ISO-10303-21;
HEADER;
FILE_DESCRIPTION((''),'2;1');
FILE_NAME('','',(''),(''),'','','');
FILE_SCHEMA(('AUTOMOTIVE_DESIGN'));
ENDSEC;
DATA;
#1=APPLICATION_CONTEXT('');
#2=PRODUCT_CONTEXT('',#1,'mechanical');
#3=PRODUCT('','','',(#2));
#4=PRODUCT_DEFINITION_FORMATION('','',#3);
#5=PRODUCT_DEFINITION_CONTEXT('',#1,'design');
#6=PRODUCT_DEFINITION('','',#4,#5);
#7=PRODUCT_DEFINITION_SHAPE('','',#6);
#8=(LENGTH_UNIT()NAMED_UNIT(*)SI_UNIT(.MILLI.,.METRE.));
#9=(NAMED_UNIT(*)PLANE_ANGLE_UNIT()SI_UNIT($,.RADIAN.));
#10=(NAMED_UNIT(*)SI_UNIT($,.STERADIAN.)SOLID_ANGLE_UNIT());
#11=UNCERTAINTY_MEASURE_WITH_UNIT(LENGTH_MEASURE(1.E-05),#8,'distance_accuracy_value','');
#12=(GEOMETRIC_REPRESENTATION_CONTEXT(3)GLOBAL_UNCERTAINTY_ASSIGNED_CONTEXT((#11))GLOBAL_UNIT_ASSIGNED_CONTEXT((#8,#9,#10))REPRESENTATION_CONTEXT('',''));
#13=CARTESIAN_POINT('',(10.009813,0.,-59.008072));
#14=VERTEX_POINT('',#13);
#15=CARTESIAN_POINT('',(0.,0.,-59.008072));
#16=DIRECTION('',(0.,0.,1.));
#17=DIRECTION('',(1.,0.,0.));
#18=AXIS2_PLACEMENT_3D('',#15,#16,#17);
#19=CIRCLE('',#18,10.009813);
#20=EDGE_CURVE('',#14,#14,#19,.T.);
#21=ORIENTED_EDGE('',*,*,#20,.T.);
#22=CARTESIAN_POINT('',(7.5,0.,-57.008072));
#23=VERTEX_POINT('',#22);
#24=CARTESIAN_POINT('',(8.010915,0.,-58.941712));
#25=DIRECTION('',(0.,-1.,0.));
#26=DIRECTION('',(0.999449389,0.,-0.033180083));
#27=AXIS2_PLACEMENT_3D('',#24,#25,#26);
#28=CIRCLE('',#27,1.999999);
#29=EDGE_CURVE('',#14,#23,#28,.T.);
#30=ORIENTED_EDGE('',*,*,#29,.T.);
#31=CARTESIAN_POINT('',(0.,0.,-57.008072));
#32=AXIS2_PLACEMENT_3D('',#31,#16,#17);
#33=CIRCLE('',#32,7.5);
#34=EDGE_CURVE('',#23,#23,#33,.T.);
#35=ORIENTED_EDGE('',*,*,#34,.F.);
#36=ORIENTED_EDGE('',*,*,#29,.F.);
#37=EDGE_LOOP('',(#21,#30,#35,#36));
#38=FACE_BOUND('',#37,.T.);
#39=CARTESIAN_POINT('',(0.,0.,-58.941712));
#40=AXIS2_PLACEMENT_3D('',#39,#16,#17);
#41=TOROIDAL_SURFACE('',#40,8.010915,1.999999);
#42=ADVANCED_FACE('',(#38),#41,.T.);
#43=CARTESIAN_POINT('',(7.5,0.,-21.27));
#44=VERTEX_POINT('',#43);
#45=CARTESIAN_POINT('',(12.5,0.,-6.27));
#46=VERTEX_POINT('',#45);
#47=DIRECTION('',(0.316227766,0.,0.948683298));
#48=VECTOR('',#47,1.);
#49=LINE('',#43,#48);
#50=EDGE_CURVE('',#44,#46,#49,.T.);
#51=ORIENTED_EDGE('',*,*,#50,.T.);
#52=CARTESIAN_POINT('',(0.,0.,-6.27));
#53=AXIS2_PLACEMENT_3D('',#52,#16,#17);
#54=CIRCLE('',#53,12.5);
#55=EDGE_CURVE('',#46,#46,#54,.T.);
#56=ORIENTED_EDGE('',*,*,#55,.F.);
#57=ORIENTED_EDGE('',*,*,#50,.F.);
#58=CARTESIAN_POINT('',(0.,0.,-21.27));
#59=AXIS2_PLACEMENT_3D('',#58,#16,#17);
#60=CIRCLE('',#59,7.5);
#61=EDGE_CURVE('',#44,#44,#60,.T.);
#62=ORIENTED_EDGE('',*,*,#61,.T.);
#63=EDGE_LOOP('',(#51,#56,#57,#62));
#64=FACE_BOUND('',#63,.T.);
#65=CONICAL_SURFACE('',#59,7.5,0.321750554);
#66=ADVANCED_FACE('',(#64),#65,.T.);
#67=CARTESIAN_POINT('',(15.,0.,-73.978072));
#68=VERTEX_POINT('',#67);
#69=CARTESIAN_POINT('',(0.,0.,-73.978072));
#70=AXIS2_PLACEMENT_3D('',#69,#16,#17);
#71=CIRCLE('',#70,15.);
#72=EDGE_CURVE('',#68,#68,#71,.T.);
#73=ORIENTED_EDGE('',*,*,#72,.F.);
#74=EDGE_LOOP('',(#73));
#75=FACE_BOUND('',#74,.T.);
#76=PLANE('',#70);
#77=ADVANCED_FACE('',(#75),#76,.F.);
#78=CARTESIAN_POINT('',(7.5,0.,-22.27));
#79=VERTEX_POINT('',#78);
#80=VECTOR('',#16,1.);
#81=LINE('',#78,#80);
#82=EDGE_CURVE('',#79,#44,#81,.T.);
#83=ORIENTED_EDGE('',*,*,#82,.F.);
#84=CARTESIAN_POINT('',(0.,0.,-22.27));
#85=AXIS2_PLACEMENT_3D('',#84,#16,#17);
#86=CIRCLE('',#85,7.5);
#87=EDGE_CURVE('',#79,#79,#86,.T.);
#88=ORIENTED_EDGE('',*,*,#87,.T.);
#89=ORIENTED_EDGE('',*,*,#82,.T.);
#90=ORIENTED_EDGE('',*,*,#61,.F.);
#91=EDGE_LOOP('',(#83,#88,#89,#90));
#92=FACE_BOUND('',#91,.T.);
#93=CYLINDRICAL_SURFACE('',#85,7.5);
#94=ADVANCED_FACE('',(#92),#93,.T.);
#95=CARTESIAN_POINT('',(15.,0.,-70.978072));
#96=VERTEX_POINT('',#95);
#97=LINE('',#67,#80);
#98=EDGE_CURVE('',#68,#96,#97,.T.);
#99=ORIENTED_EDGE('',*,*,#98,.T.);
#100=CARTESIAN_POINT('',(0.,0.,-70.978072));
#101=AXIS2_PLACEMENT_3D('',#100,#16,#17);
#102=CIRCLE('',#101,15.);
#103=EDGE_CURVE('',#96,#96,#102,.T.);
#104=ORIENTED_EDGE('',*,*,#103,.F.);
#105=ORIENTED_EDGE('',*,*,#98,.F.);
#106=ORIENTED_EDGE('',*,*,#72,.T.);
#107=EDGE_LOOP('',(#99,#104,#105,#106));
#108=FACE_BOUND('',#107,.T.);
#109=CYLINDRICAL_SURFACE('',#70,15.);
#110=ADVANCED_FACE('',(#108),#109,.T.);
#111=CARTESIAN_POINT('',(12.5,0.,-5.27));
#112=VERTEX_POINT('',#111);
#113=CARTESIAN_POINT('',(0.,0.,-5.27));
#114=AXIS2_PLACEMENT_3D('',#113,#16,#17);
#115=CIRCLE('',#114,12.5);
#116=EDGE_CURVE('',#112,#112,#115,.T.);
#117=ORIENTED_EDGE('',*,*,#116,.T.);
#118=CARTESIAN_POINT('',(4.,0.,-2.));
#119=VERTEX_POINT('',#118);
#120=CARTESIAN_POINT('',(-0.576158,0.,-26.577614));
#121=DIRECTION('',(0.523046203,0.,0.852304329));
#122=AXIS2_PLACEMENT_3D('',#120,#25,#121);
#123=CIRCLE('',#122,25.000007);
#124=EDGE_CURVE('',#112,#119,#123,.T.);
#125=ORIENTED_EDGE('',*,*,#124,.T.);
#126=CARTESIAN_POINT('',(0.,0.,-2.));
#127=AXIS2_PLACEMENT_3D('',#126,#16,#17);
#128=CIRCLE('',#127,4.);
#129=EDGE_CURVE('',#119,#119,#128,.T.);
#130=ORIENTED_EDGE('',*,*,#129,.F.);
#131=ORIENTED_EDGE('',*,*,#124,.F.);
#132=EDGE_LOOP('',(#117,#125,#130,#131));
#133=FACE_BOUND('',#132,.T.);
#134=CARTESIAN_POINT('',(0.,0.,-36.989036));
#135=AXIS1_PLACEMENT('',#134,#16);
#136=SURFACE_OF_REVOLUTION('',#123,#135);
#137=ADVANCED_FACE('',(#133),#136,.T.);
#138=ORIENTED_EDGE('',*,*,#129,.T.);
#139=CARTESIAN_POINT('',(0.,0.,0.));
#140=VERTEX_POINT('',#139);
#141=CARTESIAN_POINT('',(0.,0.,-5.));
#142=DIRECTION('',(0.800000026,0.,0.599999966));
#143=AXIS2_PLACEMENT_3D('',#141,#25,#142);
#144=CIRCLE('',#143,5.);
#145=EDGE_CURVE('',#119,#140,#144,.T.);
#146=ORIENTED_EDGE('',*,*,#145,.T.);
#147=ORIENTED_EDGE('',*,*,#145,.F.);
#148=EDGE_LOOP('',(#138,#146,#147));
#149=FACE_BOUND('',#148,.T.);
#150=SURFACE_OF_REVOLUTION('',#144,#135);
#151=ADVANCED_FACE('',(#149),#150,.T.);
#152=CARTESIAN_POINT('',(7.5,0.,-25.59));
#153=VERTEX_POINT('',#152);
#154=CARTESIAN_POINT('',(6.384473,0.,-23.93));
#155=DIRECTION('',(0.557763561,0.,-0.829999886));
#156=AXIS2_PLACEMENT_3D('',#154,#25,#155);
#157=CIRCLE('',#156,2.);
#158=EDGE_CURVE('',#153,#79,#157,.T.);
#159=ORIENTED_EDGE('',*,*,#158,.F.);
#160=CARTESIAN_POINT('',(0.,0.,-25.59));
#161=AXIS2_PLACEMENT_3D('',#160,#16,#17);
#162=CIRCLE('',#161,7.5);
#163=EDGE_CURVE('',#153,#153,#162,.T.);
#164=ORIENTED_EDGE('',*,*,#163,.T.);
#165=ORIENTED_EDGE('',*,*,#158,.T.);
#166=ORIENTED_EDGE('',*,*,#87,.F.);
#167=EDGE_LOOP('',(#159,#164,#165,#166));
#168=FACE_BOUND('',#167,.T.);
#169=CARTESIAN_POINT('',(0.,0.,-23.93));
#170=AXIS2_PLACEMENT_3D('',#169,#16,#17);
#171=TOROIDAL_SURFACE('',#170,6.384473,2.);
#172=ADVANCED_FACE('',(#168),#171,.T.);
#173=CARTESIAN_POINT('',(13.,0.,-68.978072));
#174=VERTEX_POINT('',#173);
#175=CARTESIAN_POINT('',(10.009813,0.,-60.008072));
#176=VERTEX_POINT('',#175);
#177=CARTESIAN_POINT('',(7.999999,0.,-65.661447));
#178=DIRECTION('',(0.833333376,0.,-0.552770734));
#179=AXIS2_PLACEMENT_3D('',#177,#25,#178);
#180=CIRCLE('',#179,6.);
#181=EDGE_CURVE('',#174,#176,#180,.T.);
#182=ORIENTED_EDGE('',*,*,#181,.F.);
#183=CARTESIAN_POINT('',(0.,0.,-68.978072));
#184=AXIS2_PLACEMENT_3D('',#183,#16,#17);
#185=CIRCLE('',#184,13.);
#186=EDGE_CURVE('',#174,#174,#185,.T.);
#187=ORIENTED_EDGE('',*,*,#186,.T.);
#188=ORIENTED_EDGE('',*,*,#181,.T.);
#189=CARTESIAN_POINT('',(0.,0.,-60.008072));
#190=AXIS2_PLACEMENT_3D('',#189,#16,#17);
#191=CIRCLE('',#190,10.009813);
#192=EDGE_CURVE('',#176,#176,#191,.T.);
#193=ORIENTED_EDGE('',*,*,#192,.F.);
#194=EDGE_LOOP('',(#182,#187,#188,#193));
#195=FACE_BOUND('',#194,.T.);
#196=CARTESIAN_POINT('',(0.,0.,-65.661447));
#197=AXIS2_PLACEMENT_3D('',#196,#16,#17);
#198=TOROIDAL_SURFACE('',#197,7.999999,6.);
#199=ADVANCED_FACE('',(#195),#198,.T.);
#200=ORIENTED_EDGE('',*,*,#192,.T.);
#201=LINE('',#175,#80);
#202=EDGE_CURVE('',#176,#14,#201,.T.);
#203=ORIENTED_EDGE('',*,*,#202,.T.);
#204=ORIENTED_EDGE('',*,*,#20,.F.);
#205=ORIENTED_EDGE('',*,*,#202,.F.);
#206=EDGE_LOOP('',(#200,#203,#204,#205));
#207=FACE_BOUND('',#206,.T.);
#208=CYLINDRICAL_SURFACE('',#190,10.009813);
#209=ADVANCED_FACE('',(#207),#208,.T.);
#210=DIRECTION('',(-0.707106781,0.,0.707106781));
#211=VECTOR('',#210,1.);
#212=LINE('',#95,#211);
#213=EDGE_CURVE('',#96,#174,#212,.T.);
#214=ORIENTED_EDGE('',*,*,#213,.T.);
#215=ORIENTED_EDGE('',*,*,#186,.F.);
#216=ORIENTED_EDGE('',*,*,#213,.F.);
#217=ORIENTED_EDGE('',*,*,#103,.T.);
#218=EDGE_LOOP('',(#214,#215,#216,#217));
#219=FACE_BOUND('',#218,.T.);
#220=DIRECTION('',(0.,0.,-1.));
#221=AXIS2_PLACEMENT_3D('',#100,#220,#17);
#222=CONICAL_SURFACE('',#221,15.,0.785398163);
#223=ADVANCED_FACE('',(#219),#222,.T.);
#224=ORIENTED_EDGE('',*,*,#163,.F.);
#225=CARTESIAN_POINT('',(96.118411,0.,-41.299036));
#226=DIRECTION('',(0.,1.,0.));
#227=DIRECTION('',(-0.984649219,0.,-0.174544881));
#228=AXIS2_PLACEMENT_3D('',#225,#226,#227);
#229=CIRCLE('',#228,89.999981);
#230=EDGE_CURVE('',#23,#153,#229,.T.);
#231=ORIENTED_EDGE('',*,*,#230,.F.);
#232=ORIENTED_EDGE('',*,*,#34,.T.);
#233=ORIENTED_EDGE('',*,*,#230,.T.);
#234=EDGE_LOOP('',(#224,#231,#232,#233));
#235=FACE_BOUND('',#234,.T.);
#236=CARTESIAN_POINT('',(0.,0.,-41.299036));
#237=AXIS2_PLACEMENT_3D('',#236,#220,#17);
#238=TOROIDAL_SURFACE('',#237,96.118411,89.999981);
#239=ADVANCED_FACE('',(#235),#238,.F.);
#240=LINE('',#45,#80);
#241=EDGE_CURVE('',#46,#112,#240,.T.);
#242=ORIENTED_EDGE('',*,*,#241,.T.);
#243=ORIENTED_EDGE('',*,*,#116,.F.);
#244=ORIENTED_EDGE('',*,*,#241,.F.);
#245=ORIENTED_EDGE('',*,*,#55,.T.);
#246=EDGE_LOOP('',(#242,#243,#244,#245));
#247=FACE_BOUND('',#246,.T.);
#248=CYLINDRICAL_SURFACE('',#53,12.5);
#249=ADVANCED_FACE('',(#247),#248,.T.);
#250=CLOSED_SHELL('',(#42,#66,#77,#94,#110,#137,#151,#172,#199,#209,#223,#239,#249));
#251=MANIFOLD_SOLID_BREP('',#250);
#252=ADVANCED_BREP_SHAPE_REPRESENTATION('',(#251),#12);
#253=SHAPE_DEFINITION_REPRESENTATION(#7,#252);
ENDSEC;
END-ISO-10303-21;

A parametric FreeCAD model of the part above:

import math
import FreeCAD as App
import Part
import Sketcher

V = App.Vector
Q = App.Units.Quantity

doc = App.newDocument("Part")
body = doc.addObject("PartDesign::Body", "Body")

# Sketch on XZ plane
sketch1 = doc.addObject("Sketcher::SketchObject", "Sketch")
body.addObject(sketch1)
sketch1.AttachmentSupport = (doc.XZ_Plane, [""])
sketch1.MapMode = "FlatFace"
sketch1.addGeometry([
    Part.ArcOfCircle(Part.Circle(V(-0.6, -26.6, 0), V(0, 0, 1), 25), math.radians(58), math.radians(79)),  # 0
    Part.ArcOfCircle(Part.Circle(V(0, -5, 0), V(0, 0, 1), 5), math.radians(37), math.radians(90)),  # 1
    Part.LineSegment(V(0, 0, 0), V(0, -74, 0)),  # 2
    Part.LineSegment(V(0, -74, 0), V(15, -74, 0)),  # 3
    Part.LineSegment(V(15, -74, 0), V(15, -71, 0)),  # 4
    Part.LineSegment(V(15, -71, 0), V(13, -69, 0)),  # 5
    Part.ArcOfCircle(Part.Circle(V(8, -65.7, 0), V(0, 0, 1), 6), math.radians(-34), math.radians(70)),  # 6
    Part.LineSegment(V(10, -60, 0), V(10, -59, 0)),  # 7
    Part.ArcOfCircle(Part.Circle(V(8, -58.9, 0), V(0, 0, 1), 2), math.radians(-2), math.radians(105)),  # 8
    Part.ArcOfCircle(Part.Circle(V(96.1, -41.3, 0), V(0, 0, 1), 90), math.radians(170), math.radians(190)),  # 9
    Part.ArcOfCircle(Part.Circle(V(6.4, -23.9, 0), V(0, 0, 1), 2), math.radians(-56), math.radians(56)),  # 10
    Part.LineSegment(V(7.5, -22.3, 0), V(7.5, -21.3, 0)),  # 11
    Part.LineSegment(V(7.5, -21.3, 0), V(12.5, -6.3, 0)),  # 12
    Part.LineSegment(V(12.5, -6.3, 0), V(12.5, -5.3, 0)),  # 13
], False)
sketch1.addConstraint([
    Sketcher.Constraint("Coincident", 0, 2, 1, 1),
    Sketcher.Constraint("Coincident", 1, 2, 2, 1),
    Sketcher.Constraint("Coincident", 2, 2, 3, 1),
    Sketcher.Constraint("Coincident", 3, 2, 4, 1),
    Sketcher.Constraint("Coincident", 4, 2, 5, 1),
    Sketcher.Constraint("Coincident", 5, 2, 6, 1),
    Sketcher.Constraint("Coincident", 6, 2, 7, 1),
    Sketcher.Constraint("Coincident", 7, 2, 8, 1),
    Sketcher.Constraint("Coincident", 8, 2, 9, 2),
    Sketcher.Constraint("Coincident", 9, 1, 10, 1),
    Sketcher.Constraint("Coincident", 10, 2, 11, 1),
    Sketcher.Constraint("Coincident", 11, 2, 12, 1),
    Sketcher.Constraint("Coincident", 12, 2, 13, 1),
    Sketcher.Constraint("Coincident", 13, 2, 0, 1),
    Sketcher.Constraint("Vertical", 2),
    Sketcher.Constraint("Horizontal", 3),
    Sketcher.Constraint("Vertical", 4),
    Sketcher.Constraint("Vertical", 7),
    Sketcher.Constraint("Vertical", 11),
    Sketcher.Constraint("Vertical", 13),
    Sketcher.Constraint("Coincident", 1, 2, -1, 1),
    Sketcher.Constraint("Equal", 8, 10),
    Sketcher.Constraint("PointOnObject", 1, 3, -2),
    Sketcher.Constraint("Vertical", 8, 2, 9, 1),
    Sketcher.Constraint("Vertical", 9, 1, 10, 2),
    Sketcher.Constraint("Equal", 7, 11),
    Sketcher.Constraint("Equal", 11, 13),
    Sketcher.Constraint("Radius", 1, Q("5 mm")),
    Sketcher.Constraint("Radius", 6, Q("6 mm")),
    Sketcher.Constraint("Radius", 8, Q("1.999999 mm")),
    Sketcher.Constraint("DistanceX", 3, 1, 3, 2, Q("15 mm")),
    Sketcher.Constraint("DistanceY", 4, 1, 4, 2, Q("3 mm")),
    Sketcher.Constraint("DistanceY", 7, 1, 7, 2, Q("1 mm")),
    Sketcher.Constraint("Angle", 5, Q("135 deg")),
    Sketcher.Constraint("DistanceX", -1, 1, 6, 3, Q("7.999999 mm")),
    Sketcher.Constraint("DistanceX", -1, 1, 0, 2, Q("4 mm")),
    Sketcher.Constraint("DistanceX", -1, 1, 5, 2, Q("13 mm")),
    Sketcher.Constraint("DistanceY", 7, 2, 8, 2, Q("2 mm")),
    Sketcher.Constraint("DistanceX", 11, 2, 12, 2, Q("5 mm")),
    Sketcher.Constraint("DistanceY", 11, 2, 12, 2, Q("15 mm")),
    Sketcher.Constraint("DistanceX", -1, 1, 8, 2, Q("7.5 mm")),
    Sketcher.Constraint("DistanceY", 10, 3, -1, 1, Q("23.93 mm")),
    Sketcher.Constraint("DistanceY", 9, 1, -1, 1, Q("25.59 mm")),
    Sketcher.Constraint("Radius", 9, Q("89.999981 mm")),
    Sketcher.Constraint("DistanceY", 5, 2, 6, 2, Q("8.97 mm")),
    Sketcher.Constraint("Radius", 0, Q("25.000007 mm")),
    Sketcher.Constraint("DistanceY", 2, 2, 2, 1, Q("73.978072 mm")),
])
revolution = doc.addObject("PartDesign::Revolution", "Revolution")
body.addObject(revolution)
revolution.Profile = sketch1
revolution.ReferenceAxis = (sketch1, ["V_Axis"])
revolution.Angle = 360

doc.recompute()
